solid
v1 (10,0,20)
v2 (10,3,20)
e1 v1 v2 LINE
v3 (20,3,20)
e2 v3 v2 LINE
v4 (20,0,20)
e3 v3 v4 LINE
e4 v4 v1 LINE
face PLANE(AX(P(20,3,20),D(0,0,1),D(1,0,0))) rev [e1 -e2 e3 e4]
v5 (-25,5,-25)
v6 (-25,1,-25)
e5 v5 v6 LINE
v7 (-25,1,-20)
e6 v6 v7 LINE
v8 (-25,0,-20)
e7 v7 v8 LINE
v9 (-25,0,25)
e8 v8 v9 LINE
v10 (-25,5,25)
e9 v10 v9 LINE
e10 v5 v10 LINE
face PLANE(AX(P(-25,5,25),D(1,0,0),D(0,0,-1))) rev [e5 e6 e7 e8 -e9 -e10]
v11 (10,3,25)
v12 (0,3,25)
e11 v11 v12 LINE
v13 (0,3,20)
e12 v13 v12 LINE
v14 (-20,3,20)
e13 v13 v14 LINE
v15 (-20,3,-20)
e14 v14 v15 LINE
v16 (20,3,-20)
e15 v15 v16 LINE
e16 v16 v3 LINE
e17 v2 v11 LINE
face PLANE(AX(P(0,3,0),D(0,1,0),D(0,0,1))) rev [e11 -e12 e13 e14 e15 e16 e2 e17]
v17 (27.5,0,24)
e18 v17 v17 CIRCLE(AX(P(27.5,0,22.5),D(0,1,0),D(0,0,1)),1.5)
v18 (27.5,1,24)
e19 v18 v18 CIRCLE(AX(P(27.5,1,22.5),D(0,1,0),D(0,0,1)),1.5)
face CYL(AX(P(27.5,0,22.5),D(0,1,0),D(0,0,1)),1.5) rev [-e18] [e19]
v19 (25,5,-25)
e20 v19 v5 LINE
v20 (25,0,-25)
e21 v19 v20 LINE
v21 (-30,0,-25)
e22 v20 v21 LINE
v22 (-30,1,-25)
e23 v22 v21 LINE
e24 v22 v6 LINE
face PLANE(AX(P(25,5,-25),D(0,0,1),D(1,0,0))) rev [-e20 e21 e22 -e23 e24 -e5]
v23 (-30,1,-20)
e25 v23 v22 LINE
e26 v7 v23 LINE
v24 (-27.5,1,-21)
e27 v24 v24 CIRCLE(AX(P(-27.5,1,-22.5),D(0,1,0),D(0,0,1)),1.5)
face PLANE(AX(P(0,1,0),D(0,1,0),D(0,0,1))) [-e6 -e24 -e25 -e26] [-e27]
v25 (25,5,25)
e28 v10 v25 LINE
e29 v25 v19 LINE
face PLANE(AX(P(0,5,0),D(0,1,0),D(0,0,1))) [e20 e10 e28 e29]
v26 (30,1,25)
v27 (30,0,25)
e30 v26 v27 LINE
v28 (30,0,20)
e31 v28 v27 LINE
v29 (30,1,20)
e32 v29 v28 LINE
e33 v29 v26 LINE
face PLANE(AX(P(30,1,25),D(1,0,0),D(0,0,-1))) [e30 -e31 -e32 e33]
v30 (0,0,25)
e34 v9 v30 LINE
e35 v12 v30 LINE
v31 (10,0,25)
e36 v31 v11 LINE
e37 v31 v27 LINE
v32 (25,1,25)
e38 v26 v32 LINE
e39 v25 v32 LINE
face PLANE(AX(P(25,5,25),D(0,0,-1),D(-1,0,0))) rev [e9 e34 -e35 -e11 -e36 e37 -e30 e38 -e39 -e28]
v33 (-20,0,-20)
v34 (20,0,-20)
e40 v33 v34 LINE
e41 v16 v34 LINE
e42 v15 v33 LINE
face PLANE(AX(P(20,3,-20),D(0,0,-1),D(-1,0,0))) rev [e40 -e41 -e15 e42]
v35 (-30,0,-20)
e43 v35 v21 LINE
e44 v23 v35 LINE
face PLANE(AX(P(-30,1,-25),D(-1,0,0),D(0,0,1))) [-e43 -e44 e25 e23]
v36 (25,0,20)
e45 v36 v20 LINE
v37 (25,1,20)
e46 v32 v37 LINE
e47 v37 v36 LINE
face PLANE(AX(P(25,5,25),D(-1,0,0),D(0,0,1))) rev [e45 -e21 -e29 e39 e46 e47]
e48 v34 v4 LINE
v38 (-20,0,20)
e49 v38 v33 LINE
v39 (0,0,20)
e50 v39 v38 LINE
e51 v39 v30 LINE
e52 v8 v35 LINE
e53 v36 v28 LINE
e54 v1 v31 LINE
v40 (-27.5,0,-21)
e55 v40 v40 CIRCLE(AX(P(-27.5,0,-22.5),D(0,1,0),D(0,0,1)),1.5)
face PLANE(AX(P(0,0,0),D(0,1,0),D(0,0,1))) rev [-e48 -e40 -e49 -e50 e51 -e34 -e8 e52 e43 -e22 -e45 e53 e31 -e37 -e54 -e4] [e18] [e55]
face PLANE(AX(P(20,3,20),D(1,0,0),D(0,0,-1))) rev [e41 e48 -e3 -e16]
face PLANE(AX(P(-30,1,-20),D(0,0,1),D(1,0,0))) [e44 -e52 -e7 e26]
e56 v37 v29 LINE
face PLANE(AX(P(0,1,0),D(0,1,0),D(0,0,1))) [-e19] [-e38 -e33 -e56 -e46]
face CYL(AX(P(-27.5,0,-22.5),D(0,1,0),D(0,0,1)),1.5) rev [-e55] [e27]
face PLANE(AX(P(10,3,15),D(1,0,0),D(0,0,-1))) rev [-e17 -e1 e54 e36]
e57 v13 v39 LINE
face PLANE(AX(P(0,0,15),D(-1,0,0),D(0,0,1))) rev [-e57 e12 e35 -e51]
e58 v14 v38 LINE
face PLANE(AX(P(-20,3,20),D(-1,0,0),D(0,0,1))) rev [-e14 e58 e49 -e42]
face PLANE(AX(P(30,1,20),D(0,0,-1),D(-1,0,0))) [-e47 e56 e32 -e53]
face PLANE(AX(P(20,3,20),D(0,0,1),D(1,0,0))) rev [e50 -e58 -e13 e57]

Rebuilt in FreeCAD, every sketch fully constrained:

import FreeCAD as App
import Part
import Sketcher

V = App.Vector
Q = App.Units.Quantity


def add_polygon(sketch, points):
    """Adds a closed chain of lines whose ends are joined by coincident constraints."""
    first, n = sketch.GeometryCount, len(points)
    for a, b in zip(points, points[1:] + points[:1]):
        sketch.addGeometry(Part.LineSegment(App.Vector(*a, 0), App.Vector(*b, 0)), False)
    for i in range(n):
        sketch.addConstraint(Sketcher.Constraint("Coincident", first + i, 2, first + (i + 1) % n, 1))

doc = App.newDocument("Part")
body = doc.addObject("PartDesign::Body", "Body")

# Sketch on XZ plane
sketch1 = doc.addObject("Sketcher::SketchObject", "Sketch")
body.addObject(sketch1)
sketch1.AttachmentSupport = (doc.XZ_Plane, [""])
sketch1.MapMode = "FlatFace"
add_polygon(sketch1, [(-25, -25), (-25, 25), (25, 25), (25, -25)])  # lines 0-3
sketch1.addConstraint([
    Sketcher.Constraint("Vertical", 0),
    Sketcher.Constraint("Horizontal", 1),
    Sketcher.Constraint("Vertical", 2),
    Sketcher.Constraint("Horizontal", 3),
    Sketcher.Constraint("Symmetric", 0, 2, 2, 2, -1, 1),
    Sketcher.Constraint("Equal", 3, 0),
    Sketcher.Constraint("DistanceX", 1, 1, 1, 2, Q("50 mm")),
])
pad1 = doc.addObject("PartDesign::Pad", "Pad")
body.addObject(pad1)
pad1.Profile = sketch1
pad1.Length = 5
pad1.Reversed = True

# Sketch on XZ plane
sketch2 = doc.addObject("Sketcher::SketchObject", "Sketch001")
body.addObject(sketch2)
sketch2.AttachmentSupport = (doc.XZ_Plane, [""])
sketch2.MapMode = "FlatFace"
add_polygon(sketch2, [(20, -20), (20, 20), (-20, 20), (-20, -20)])  # lines 0-3
sketch2.addConstraint([
    Sketcher.Constraint("Vertical", 0),
    Sketcher.Constraint("Horizontal", 1),
    Sketcher.Constraint("Vertical", 2),
    Sketcher.Constraint("Horizontal", 3),
    Sketcher.Constraint("Symmetric", 0, 2, 2, 2, -1, 1),
    Sketcher.Constraint("Equal", 3, 0),
    Sketcher.Constraint("DistanceX", 1, 2, 1, 1, Q("40 mm")),
])
pocket1 = doc.addObject("PartDesign::Pocket", "Pocket")
body.addObject(pocket1)
pocket1.Profile = sketch2
pocket1.Length = 3

# Sketch on XZ plane
sketch3 = doc.addObject("Sketcher::SketchObject", "Sketch002")
body.addObject(sketch3)
sketch3.AttachmentSupport = (doc.XZ_Plane, [""])
sketch3.MapMode = "FlatFace"
add_polygon(sketch3, [(-25, -25), (-25, -20), (-30, -20), (-30, -25)])  # lines 0-3
add_polygon(sketch3, [(30, 20), (30, 25), (25, 25), (25, 20)])  # lines 4-7
sketch3.addConstraint([
    Sketcher.Constraint("Vertical", 0),
    Sketcher.Constraint("Horizontal", 1),
    Sketcher.Constraint("Vertical", 2),
    Sketcher.Constraint("Horizontal", 3),
    Sketcher.Constraint("Vertical", 4),
    Sketcher.Constraint("Horizontal", 5),
    Sketcher.Constraint("Vertical", 6),
    Sketcher.Constraint("Horizontal", 7),
    Sketcher.Constraint("Symmetric", 2, 2, 4, 2, -1, 1),
    Sketcher.Constraint("Symmetric", 0, 2, 6, 2, -1, 1),
    Sketcher.Constraint("Equal", 7, 0),
    Sketcher.Constraint("DistanceX", 1, 2, 1, 1, Q("5 mm")),
    Sketcher.Constraint("DistanceX", 0, 2, -1, 1, Q("25 mm")),
    Sketcher.Constraint("DistanceY", 0, 2, -1, 1, Q("20 mm")),
])
pad2 = doc.addObject("PartDesign::Pad", "Pad001")
body.addObject(pad2)
pad2.Profile = sketch3
pad2.Length = 1
pad2.Reversed = True

# Sketch on XZ plane
sketch4 = doc.addObject("Sketcher::SketchObject", "Sketch003")
body.addObject(sketch4)
sketch4.AttachmentSupport = (doc.XZ_Plane, [""])
sketch4.MapMode = "FlatFace"
sketch4.AttachmentOffset = App.Placement(V(0, 0, -1), App.Rotation())
sketch4.addGeometry([
    Part.Circle(V(-27.5, -22.5, 0), V(0, 0, 1), 1.5),
    Part.Circle(V(27.5, 22.5, 0), V(0, 0, 1), 1.5),
], False)
sketch4.addConstraint([
    Sketcher.Constraint("Equal", 0, 1),
    Sketcher.Constraint("Symmetric", 0, 3, 1, 3, -1, 1),
    Sketcher.Constraint("Diameter", 0, Q("3 mm")),
    Sketcher.Constraint("DistanceX", 0, 3, 1, 3, Q("55 mm")),
    Sketcher.Constraint("DistanceY", 0, 3, 1, 3, Q("45 mm")),
])
pocket2 = doc.addObject("PartDesign::Pocket", "Pocket001")
body.addObject(pocket2)
pocket2.Profile = sketch4
pocket2.Length = 1
pocket2.Reversed = True

# Sketch on XY plane
sketch5 = doc.addObject("Sketcher::SketchObject", "Sketch004")
body.addObject(sketch5)
sketch5.AttachmentSupport = (doc.XY_Plane, [""])
sketch5.MapMode = "FlatFace"
sketch5.AttachmentOffset = App.Placement(V(0, 0, 25), App.Rotation())
add_polygon(sketch5, [(0, 3), (0, 0), (10, 0), (10, 3)])  # lines 0-3
sketch5.addConstraint([
    Sketcher.Constraint("Vertical", 0),
    Sketcher.Constraint("Horizontal", 1),
    Sketcher.Constraint("Vertical", 2),
    Sketcher.Constraint("Horizontal", 3),
    Sketcher.Constraint("Coincident", 0, 2, -1, 1),
    Sketcher.Constraint("DistanceX", 1, 1, 1, 2, Q("10 mm")),
    Sketcher.Constraint("DistanceY", 0, 2, 0, 1, Q("3 mm")),
])
pocket3 = doc.addObject("PartDesign::Pocket", "Pocket002")
body.addObject(pocket3)
pocket3.Profile = sketch5
pocket3.Length = 10

doc.recompute()
